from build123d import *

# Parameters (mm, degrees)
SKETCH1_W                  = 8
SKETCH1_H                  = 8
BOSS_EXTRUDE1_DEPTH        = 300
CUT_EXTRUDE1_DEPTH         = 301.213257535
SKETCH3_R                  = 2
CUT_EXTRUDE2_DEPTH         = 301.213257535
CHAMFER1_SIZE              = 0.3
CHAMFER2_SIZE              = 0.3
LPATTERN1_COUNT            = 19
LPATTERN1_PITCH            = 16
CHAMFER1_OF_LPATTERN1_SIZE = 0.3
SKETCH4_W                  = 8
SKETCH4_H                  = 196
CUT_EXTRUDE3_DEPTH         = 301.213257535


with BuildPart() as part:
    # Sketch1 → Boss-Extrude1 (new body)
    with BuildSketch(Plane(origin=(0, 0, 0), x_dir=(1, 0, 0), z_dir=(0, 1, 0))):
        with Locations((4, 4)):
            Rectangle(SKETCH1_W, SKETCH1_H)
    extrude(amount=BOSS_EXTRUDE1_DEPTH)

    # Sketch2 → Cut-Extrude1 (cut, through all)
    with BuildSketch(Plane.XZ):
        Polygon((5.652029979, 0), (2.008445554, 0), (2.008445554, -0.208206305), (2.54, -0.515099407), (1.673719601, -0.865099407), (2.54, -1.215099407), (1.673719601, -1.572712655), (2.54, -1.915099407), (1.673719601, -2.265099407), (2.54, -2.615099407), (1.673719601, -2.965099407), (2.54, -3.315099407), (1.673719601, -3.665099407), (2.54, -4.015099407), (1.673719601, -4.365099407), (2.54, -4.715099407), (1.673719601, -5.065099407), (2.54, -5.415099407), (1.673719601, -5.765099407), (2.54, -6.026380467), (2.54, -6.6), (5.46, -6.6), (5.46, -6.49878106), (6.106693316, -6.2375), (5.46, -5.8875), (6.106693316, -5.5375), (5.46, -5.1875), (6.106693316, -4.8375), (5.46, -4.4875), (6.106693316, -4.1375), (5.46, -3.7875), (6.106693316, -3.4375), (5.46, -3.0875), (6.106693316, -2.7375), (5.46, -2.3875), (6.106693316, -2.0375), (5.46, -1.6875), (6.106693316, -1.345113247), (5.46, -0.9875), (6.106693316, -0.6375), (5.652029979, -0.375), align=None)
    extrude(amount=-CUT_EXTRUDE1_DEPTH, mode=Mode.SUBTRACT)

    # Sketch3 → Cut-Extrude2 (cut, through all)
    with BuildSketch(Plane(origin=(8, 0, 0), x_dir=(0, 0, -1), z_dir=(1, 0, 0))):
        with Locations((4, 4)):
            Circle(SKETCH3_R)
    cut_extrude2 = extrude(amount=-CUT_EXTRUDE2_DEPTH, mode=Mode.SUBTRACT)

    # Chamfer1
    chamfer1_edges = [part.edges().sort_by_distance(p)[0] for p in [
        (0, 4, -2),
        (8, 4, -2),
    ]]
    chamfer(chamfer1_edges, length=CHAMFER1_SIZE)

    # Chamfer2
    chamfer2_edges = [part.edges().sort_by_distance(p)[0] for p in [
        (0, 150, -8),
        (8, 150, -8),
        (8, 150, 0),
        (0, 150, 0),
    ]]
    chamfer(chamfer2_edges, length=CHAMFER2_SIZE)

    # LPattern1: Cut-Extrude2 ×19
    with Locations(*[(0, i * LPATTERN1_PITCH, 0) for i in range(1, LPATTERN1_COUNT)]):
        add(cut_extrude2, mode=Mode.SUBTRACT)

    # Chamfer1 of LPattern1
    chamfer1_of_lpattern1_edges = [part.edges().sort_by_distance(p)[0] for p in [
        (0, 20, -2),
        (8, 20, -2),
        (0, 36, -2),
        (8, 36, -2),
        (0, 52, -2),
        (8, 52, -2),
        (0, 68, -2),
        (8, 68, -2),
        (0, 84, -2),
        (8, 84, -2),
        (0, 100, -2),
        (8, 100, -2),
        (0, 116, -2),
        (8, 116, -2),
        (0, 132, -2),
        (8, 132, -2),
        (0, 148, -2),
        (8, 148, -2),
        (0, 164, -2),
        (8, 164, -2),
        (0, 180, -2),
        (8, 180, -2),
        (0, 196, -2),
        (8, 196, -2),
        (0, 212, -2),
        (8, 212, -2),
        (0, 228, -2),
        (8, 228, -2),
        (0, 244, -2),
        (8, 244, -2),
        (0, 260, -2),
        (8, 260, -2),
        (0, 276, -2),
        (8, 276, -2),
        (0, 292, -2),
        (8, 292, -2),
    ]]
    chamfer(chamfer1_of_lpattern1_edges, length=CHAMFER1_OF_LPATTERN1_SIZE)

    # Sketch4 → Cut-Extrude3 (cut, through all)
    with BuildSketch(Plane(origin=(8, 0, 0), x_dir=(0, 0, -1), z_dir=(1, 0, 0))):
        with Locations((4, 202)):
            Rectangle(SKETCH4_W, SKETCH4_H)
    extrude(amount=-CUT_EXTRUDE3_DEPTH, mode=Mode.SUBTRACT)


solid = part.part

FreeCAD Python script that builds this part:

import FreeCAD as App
import Part
import Sketcher
Q = App.Units.Quantity


def edges_at(feature, points):
    """Names of the edges that pass closest to the given points."""
    edges = feature.Shape.Edges
    near = lambda p: min(range(len(edges)), key=lambda i: edges[i].distToShape(Part.Vertex(*p))[0])
    return sorted({f"Edge{near(p) + 1}" for p in points})


def add_polygon(sketch, points):
    """Adds a closed chain of lines whose ends are joined by coincident constraints."""
    first, n = sketch.GeometryCount, len(points)
    for a, b in zip(points, points[1:] + points[:1]):
        sketch.addGeometry(Part.LineSegment(App.Vector(*a, 0), App.Vector(*b, 0)), False)
    for i in range(n):
        sketch.addConstraint(Sketcher.Constraint("Coincident", first + i, 2, first + (i + 1) % n, 1))

doc = App.newDocument("Part")
body = doc.addObject("PartDesign::Body", "Body")

sketch1 = doc.addObject("Sketcher::SketchObject", "Sketch")
body.addObject(sketch1)
sketch1.AttachmentSupport = (doc.XZ_Plane, [""])
sketch1.MapMode = "FlatFace"
add_polygon(sketch1, [(0, -8), (0, 0), (8, 0), (8, -8)])
sketch1.addConstraint(Sketcher.Constraint("Vertical", 0))
sketch1.addConstraint(Sketcher.Constraint("Horizontal", 1))
sketch1.addConstraint(Sketcher.Constraint("Vertical", 2))
sketch1.addConstraint(Sketcher.Constraint("Horizontal", 3))
sketch1.addConstraint(Sketcher.Constraint("Coincident", 0, 2, -1, 1))
sketch1.addConstraint(Sketcher.Constraint("Equal", 3, 0))
sketch1.addConstraint(Sketcher.Constraint("DistanceX", 1, 1, 1, 2, 8.0))
pad1 = doc.addObject("PartDesign::Pad", "Pad")
body.addObject(pad1)
pad1.Profile = sketch1
pad1.Length = 300
pad1.Reversed = True

sketch2 = doc.addObject("Sketcher::SketchObject", "Sketch001")
body.addObject(sketch2)
sketch2.AttachmentSupport = (doc.XZ_Plane, [""])
sketch2.MapMode = "FlatFace"
add_polygon(sketch2, [(5.65, 0), (2.01, 0), (2.01, -0.21), (2.54, -0.52), (1.67, -0.87), (2.54, -1.22), (1.67, -1.57), (2.54, -1.92), (1.67, -2.27), (2.54, -2.62), (1.67, -2.97), (2.54, -3.32), (1.67, -3.67), (2.54, -4.02), (1.67, -4.37), (2.54, -4.72), (1.67, -5.07), (2.54, -5.42), (1.67, -5.77), (2.54, -6.03), (2.54, -6.6), (5.46, -6.6), (5.46, -6.5), (6.11, -6.24), (5.46, -5.89), (6.11, -5.54), (5.46, -5.19), (6.11, -4.84), (5.46, -4.49), (6.11, -4.14), (5.46, -3.79), (6.11, -3.44), (5.46, -3.09), (6.11, -2.74), (5.46, -2.39), (6.11, -2.04), (5.46, -1.69), (6.11, -1.35), (5.46, -0.99), (6.11, -0.64), (5.65, -0.38)])
sketch2.addConstraint(Sketcher.Constraint("Horizontal", 0))
sketch2.addConstraint(Sketcher.Constraint("Vertical", 1))
sketch2.addConstraint(Sketcher.Constraint("Vertical", 19))
sketch2.addConstraint(Sketcher.Constraint("Horizontal", 20))
sketch2.addConstraint(Sketcher.Constraint("Vertical", 21))
sketch2.addConstraint(Sketcher.Constraint("Vertical", 40))
sketch2.addConstraint(Sketcher.Constraint("PointOnObject", 0, 2, -1))
sketch2.addConstraint(Sketcher.Constraint("Parallel", 3, 7))
sketch2.addConstraint(Sketcher.Constraint("Parallel", 4, 8))
sketch2.addConstraint(Sketcher.Constraint("Parallel", 7, 9))
sketch2.addConstraint(Sketcher.Constraint("Parallel", 8, 10))
sketch2.addConstraint(Sketcher.Constraint("Parallel", 9, 11))
sketch2.addConstraint(Sketcher.Constraint("Parallel", 10, 12))
sketch2.addConstraint(Sketcher.Constraint("Parallel", 11, 13))
sketch2.addConstraint(Sketcher.Constraint("Parallel", 12, 14))
sketch2.addConstraint(Sketcher.Constraint("Parallel", 13, 15))
sketch2.addConstraint(Sketcher.Constraint("Parallel", 14, 16))
sketch2.addConstraint(Sketcher.Constraint("Parallel", 15, 17))
sketch2.addConstraint(Sketcher.Constraint("Parallel", 17, 22))
sketch2.addConstraint(Sketcher.Constraint("Parallel", 23, 25))
sketch2.addConstraint(Sketcher.Constraint("Parallel", 24, 26))
sketch2.addConstraint(Sketcher.Constraint("Parallel", 25, 27))
sketch2.addConstraint(Sketcher.Constraint("Parallel", 26, 28))
sketch2.addConstraint(Sketcher.Constraint("Parallel", 27, 29))
sketch2.addConstraint(Sketcher.Constraint("Parallel", 28, 30))
sketch2.addConstraint(Sketcher.Constraint("Parallel", 29, 31))
sketch2.addConstraint(Sketcher.Constraint("Parallel", 30, 32))
sketch2.addConstraint(Sketcher.Constraint("Parallel", 31, 33))
sketch2.addConstraint(Sketcher.Constraint("Parallel", 32, 34))
sketch2.addConstraint(Sketcher.Constraint("Parallel", 33, 35))
sketch2.addConstraint(Sketcher.Constraint("Parallel", 34, 38))
sketch2.addConstraint(Sketcher.Constraint("Parallel", 2, 39))
sketch2.addConstraint(Sketcher.Constraint("Vertical", 2, 2, 4, 2))
sketch2.addConstraint(Sketcher.Constraint("Vertical", 3, 2, 5, 2))
sketch2.addConstraint(Sketcher.Constraint("Vertical", 4, 2, 6, 2))
sketch2.addConstraint(Sketcher.Constraint("Vertical", 5, 2, 7, 2))
sketch2.addConstraint(Sketcher.Constraint("Vertical", 6, 2, 8, 2))
sketch2.addConstraint(Sketcher.Constraint("Vertical", 7, 2, 9, 2))
sketch2.addConstraint(Sketcher.Constraint("Vertical", 8, 2, 10, 2))
sketch2.addConstraint(Sketcher.Constraint("Vertical", 9, 2, 11, 2))
sketch2.addConstraint(Sketcher.Constraint("Vertical", 10, 2, 12, 2))
sketch2.addConstraint(Sketcher.Constraint("Vertical", 11, 2, 13, 2))
sketch2.addConstraint(Sketcher.Constraint("Vertical", 12, 2, 14, 2))
sketch2.addConstraint(Sketcher.Constraint("Vertical", 13, 2, 15, 2))
sketch2.addConstraint(Sketcher.Constraint("Vertical", 14, 2, 16, 2))
sketch2.addConstraint(Sketcher.Constraint("Vertical", 15, 2, 17, 2))
sketch2.addConstraint(Sketcher.Constraint("Vertical", 16, 2, 18, 2))
sketch2.addConstraint(Sketcher.Constraint("Vertical", 21, 2, 23, 2))
sketch2.addConstraint(Sketcher.Constraint("Vertical", 22, 2, 24, 2))
sketch2.addConstraint(Sketcher.Constraint("Vertical", 23, 2, 25, 2))
sketch2.addConstraint(Sketcher.Constraint("Vertical", 24, 2, 26, 2))
sketch2.addConstraint(Sketcher.Constraint("Vertical", 25, 2, 27, 2))
sketch2.addConstraint(Sketcher.Constraint("Vertical", 26, 2, 28, 2))
sketch2.addConstraint(Sketcher.Constraint("Vertical", 27, 2, 29, 2))
sketch2.addConstraint(Sketcher.Constraint("Vertical", 28, 2, 30, 2))
sketch2.addConstraint(Sketcher.Constraint("Vertical", 29, 2, 31, 2))
sketch2.addConstraint(Sketcher.Constraint("Vertical", 30, 2, 32, 2))
sketch2.addConstraint(Sketcher.Constraint("Vertical", 31, 2, 33, 2))
sketch2.addConstraint(Sketcher.Constraint("Vertical", 32, 2, 34, 2))
sketch2.addConstraint(Sketcher.Constraint("Vertical", 33, 2, 35, 2))
sketch2.addConstraint(Sketcher.Constraint("Vertical", 34, 2, 36, 2))
sketch2.addConstraint(Sketcher.Constraint("Vertical", 35, 2, 37, 2))
sketch2.addConstraint(Sketcher.Constraint("Vertical", 36, 2, 38, 2))
sketch2.addConstraint(Sketcher.Constraint("Equal", 3, 4))
sketch2.addConstraint(Sketcher.Constraint("Equal", 23, 24))
sketch2.addConstraint(Sketcher.Constraint("Angle", 2, Q("-30 deg")))
sketch2.addConstraint(Sketcher.Constraint("Angle", 3, Q("-158 deg")))
sketch2.addConstraint(Sketcher.Constraint("DistanceX", 20, 1, 20, 2, 2.92))
sketch2.addConstraint(Sketcher.Constraint("DistanceY", 19, 2, -1, 1, 6.6))
sketch2.addConstraint(Sketcher.Constraint("DistanceY", 4, 2, 2, 2, 0.7))
sketch2.addConstraint(Sketcher.Constraint("DistanceY", 6, 2, 4, 2, 0.7))
sketch2.addConstraint(Sketcher.Constraint("DistanceY", 22, 2, 24, 2, 0.7))
sketch2.addConstraint(Sketcher.Constraint("DistanceY", 35, 2, 37, 2, 0.7))
sketch2.addConstraint(Sketcher.Constraint("DistanceY", 40, 1, 40, 2, 0.375))
sketch2.addConstraint(Sketcher.Constraint("DistanceX", -1, 1, 2, 2, 2.54))
sketch2.addConstraint(Sketcher.Constraint("Distance", 39, 0.525))
sketch2.addConstraint(Sketcher.Constraint("DistanceY", 19, 2, 19, 1, 0.57362))
sketch2.addConstraint(Sketcher.Constraint("DistanceY", 21, 1, 21, 2, 0.101219))
sketch2.addConstraint(Sketcher.Constraint("DistanceY", 2, 2, -1, 1, 0.515099))
sketch2.addConstraint(Sketcher.Constraint("Distance", 6, 0.931488))
sketch2.addConstraint(Sketcher.Constraint("Distance", 36, 0.731738))
sketch2.addConstraint(Sketcher.Constraint("DistanceX", 0, 2, 0, 1, 3.643584))
pocket1 = doc.addObject("PartDesign::Pocket", "Pocket")
body.addObject(pocket1)
pocket1.Profile = sketch2
pocket1.Type = "ThroughAll"

sketch3 = doc.addObject("Sketcher::SketchObject", "Sketch002")
body.addObject(sketch3)
sketch3.AttachmentSupport = (doc.YZ_Plane, [""])
sketch3.MapMode = "FlatFace"
sketch3.AttachmentOffset = App.Placement(App.Vector(0, 0, 8), App.Rotation())
sketch3.addGeometry(Part.Circle(App.Vector(4, -4, 0), App.Vector(0, 0, 1), 2), False)
sketch3.addConstraint(Sketcher.Constraint("Diameter", 0, 4.0))
sketch3.addConstraint(Sketcher.Constraint("DistanceX", -1, 1, 0, 3, 4.0))
sketch3.addConstraint(Sketcher.Constraint("DistanceY", 0, 3, -1, 1, 4.0))
pocket2 = doc.addObject("PartDesign::Pocket", "Pocket001")
body.addObject(pocket2)
pocket2.Profile = sketch3
pocket2.Type = "ThroughAll"
doc.recompute()

chamfer = doc.addObject("PartDesign::Chamfer", "Chamfer")
body.addObject(chamfer)
chamfer.Base = (pocket2, edges_at(pocket2, [(0, 4, -2), (8, 4, -2)]))
chamfer.Size = 0.3
doc.recompute()

chamfer2 = doc.addObject("PartDesign::Chamfer", "Chamfer001")
body.addObject(chamfer2)
chamfer2.Base = (chamfer, edges_at(chamfer, [
    (0, 150, -8),
    (8, 150, -8),
    (8, 150, 0),
    (0, 150, 0),
]))
chamfer2.Size = 0.3
doc.recompute()

linearpattern = doc.addObject("PartDesign::LinearPattern", "LinearPattern")
body.addObject(linearpattern)
linearpattern.Originals = [pocket2]
linearpattern.Direction = (doc.Y_Axis, [""])
linearpattern.Mode = "offset"
linearpattern.Offset = 16
linearpattern.Occurrences = 19
body.Tip = linearpattern
doc.recompute()

chamfer3 = doc.addObject("PartDesign::Chamfer", "Chamfer002")
body.addObject(chamfer3)
chamfer3.Base = (linearpattern, edges_at(linearpattern, [
    (0, 20, -2),
    (8, 20, -2),
    (0, 36, -2),
    (8, 36, -2),
    (0, 52, -2),
    (8, 52, -2),
    (0, 68, -2),
    (8, 68, -2),
    (0, 84, -2),
    (8, 84, -2),
    (0, 100, -2),
    (8, 100, -2),
    (0, 116, -2),
    (8, 116, -2),
    (0, 132, -2),
    (8, 132, -2),
    (0, 148, -2),
    (8, 148, -2),
    (0, 164, -2),
    (8, 164, -2),
    (0, 180, -2),
    (8, 180, -2),
    (0, 196, -2),
    (8, 196, -2),
    (0, 212, -2),
    (8, 212, -2),
    (0, 228, -2),
    (8, 228, -2),
    (0, 244, -2),
    (8, 244, -2),
    (0, 260, -2),
    (8, 260, -2),
    (0, 276, -2),
    (8, 276, -2),
    (0, 292, -2),
    (8, 292, -2),
]))
chamfer3.Size = 0.3

sketch4 = doc.addObject("Sketcher::SketchObject", "Sketch003")
body.addObject(sketch4)
sketch4.AttachmentSupport = (doc.YZ_Plane, [""])
sketch4.MapMode = "FlatFace"
sketch4.AttachmentOffset = App.Placement(App.Vector(0, 0, 8), App.Rotation())
add_polygon(sketch4, [(300, 0), (104, 0), (104, -8), (300, -8)])
sketch4.addConstraint(Sketcher.Constraint("Horizontal", 0))
sketch4.addConstraint(Sketcher.Constraint("Vertical", 1))
sketch4.addConstraint(Sketcher.Constraint("Horizontal", 2))
sketch4.addConstraint(Sketcher.Constraint("Vertical", 3))
sketch4.addConstraint(Sketcher.Constraint("PointOnObject", 0, 2, -1))
sketch4.addConstraint(Sketcher.Constraint("DistanceX", 0, 2, 0, 1, 196.0))
sketch4.addConstraint(Sketcher.Constraint("DistanceY", 1, 2, 1, 1, 8.0))
sketch4.addConstraint(Sketcher.Constraint("DistanceX", -1, 1, 0, 2, 104.0))
pocket3 = doc.addObject("PartDesign::Pocket", "Pocket002")
body.addObject(pocket3)
pocket3.Profile = sketch4
pocket3.Type = "ThroughAll"

doc.recompute()
